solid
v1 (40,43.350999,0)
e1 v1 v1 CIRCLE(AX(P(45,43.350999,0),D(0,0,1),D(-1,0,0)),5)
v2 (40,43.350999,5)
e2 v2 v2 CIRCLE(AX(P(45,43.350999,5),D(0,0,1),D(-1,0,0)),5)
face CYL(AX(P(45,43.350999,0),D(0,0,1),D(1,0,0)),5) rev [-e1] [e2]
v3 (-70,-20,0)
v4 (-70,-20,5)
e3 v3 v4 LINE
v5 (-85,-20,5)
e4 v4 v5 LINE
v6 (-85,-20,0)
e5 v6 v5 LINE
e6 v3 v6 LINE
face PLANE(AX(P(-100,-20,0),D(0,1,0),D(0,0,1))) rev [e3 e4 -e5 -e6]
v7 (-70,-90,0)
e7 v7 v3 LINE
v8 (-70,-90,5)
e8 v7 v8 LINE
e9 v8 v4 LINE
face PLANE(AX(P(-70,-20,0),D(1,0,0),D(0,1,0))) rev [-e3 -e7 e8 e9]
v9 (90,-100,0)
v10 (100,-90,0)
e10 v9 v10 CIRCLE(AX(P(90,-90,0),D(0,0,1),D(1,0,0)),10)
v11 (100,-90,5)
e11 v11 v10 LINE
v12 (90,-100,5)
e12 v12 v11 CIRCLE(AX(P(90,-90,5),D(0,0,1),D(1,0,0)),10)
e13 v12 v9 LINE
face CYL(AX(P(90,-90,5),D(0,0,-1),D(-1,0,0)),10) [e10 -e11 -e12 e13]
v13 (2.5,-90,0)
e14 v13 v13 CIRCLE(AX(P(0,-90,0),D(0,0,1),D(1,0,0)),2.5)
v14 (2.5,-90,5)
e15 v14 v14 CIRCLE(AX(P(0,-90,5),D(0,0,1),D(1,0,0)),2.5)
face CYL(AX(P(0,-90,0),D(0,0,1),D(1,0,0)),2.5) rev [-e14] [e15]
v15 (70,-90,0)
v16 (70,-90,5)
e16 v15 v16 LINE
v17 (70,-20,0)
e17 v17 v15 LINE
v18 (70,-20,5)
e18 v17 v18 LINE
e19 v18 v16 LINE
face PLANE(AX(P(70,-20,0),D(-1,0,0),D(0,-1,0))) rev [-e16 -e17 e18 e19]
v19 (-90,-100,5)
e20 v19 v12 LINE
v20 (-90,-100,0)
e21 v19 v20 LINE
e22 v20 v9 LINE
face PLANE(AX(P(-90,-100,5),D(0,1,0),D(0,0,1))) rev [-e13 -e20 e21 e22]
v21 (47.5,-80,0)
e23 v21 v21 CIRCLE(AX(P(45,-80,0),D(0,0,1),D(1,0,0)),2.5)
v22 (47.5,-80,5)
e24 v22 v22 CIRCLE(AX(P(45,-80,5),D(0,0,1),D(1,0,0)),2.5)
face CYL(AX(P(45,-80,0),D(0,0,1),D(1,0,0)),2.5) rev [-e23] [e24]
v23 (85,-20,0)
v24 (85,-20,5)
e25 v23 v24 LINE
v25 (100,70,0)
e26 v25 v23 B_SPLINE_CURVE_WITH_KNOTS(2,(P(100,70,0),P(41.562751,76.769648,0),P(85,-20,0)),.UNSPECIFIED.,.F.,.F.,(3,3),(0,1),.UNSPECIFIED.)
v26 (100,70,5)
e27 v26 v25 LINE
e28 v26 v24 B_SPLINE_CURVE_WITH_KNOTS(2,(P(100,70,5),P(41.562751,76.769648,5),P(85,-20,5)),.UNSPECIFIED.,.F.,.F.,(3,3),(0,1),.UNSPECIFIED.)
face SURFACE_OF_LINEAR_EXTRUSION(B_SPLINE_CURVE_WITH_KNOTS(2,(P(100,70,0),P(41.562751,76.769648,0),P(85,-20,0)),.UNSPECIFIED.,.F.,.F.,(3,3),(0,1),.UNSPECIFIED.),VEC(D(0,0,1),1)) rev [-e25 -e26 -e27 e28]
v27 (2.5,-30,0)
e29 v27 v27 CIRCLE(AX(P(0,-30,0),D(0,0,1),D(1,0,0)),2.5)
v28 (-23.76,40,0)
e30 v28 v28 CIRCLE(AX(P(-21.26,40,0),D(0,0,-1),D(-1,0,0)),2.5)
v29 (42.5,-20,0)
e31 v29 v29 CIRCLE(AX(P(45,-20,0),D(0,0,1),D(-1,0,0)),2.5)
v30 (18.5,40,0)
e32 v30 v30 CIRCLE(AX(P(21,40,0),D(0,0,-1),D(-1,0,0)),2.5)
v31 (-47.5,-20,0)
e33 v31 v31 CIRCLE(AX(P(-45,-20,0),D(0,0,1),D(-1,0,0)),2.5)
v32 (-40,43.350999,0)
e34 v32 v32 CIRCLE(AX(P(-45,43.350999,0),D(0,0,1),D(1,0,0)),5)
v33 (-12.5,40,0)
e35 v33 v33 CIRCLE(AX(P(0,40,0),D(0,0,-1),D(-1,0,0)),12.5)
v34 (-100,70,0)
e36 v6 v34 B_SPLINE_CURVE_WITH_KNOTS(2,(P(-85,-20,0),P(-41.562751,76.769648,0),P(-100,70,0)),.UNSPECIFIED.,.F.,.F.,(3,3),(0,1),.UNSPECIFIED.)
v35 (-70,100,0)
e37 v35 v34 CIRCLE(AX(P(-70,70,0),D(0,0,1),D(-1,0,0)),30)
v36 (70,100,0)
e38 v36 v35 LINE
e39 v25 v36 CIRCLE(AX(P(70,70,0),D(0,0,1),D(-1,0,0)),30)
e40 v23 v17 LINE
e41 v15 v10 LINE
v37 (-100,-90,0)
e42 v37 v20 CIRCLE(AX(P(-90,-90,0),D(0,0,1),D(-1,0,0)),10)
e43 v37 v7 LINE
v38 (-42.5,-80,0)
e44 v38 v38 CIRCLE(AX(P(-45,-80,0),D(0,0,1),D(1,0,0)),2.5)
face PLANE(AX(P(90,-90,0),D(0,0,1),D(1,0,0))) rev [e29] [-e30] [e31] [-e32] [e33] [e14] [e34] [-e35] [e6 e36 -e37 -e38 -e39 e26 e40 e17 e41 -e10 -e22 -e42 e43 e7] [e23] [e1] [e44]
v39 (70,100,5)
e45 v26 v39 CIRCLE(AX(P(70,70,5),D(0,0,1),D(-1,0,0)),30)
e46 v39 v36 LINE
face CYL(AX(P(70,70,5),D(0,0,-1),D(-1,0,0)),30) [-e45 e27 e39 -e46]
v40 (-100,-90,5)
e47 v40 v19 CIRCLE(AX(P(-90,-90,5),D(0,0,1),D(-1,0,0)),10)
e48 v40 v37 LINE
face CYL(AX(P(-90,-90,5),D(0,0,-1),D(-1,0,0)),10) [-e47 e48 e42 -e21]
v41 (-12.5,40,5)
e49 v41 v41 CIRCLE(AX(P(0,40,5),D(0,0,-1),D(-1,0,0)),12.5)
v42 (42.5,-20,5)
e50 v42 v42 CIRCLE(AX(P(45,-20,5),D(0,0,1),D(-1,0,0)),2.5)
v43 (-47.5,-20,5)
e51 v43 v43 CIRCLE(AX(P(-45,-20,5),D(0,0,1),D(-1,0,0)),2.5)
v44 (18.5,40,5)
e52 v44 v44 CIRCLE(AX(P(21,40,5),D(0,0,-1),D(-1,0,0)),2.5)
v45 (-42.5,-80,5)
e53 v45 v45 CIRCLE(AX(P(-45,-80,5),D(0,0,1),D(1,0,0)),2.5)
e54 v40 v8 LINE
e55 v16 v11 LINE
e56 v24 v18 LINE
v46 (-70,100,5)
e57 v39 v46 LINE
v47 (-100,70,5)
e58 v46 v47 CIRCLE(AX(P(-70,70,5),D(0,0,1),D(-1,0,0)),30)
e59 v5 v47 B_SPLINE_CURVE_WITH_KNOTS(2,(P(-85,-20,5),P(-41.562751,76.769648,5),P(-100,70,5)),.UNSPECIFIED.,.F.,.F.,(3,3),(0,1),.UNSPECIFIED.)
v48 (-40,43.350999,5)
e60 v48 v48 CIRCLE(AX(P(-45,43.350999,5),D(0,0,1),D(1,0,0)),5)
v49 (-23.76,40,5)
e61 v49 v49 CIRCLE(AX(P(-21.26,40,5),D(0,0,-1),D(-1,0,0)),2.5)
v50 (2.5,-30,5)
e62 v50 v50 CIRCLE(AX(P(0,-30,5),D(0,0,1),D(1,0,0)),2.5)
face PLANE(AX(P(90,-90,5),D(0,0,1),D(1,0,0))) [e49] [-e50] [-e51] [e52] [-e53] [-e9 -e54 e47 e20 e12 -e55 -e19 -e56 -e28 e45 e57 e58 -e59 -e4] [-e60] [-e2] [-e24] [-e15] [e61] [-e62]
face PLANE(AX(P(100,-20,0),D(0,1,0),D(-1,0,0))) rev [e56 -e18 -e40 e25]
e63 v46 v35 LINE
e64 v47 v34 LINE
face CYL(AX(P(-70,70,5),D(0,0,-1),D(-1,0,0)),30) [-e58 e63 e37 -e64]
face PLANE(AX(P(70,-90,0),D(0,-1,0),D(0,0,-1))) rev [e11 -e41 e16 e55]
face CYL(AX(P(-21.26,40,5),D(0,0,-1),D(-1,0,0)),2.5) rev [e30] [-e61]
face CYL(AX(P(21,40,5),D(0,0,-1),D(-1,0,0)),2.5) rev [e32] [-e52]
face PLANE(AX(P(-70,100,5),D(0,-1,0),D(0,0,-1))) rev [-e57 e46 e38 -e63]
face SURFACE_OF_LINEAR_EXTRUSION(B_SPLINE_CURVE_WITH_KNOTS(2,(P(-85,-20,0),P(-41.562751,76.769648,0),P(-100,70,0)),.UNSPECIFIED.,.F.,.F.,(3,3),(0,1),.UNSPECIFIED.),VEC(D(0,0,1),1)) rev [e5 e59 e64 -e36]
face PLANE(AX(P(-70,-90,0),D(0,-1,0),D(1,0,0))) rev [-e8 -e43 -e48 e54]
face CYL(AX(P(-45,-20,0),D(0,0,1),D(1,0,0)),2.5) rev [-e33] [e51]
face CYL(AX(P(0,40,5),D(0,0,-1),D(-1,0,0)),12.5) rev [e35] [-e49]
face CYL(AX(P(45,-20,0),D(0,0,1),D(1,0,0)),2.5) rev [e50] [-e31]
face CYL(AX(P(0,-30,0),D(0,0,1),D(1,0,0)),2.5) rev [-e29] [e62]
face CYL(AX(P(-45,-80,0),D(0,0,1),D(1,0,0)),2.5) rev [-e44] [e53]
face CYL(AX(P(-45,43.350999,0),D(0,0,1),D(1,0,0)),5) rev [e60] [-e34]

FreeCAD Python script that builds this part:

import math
import FreeCAD as App
import Part
import Sketcher
Q = App.Units.Quantity

doc = App.newDocument("Part")
params = doc.addObject("Spreadsheet::Sheet", "Params")
for row, (alias, value) in enumerate([
    ("sketch1_radius", "10 mm"),
    ("sketch1_radius2", "30 mm"),
    ("sketch1_width", "180 mm"),
    ("sketch1_height", "160 mm"),
    ("pad1_length", "5 mm"),
    ("sketch2_width", "30 mm"),
    ("sketch2_height", "70 mm"),
    ("pocket1_length", "5 mm"),
    ("pocket2_length", "5 mm"),
    ("sketch4_diameter", "5 mm"),
    ("sketch4_diameter2", "10 mm"),
    ("pocket3_length", "5 mm"),
    ("sketch5_diameter", "5 mm"),
    ("pocket4_length", "5 mm"),
    ("sketch6_diameter", "25 mm"),
    ("sketch6_diameter2", "5 mm"),
    ("pocket5_length", "5 mm"),
], start=1):
    params.set(f"A{row}", alias)
    params.set(f"B{row}", "=" + value)
    params.setAlias(f"B{row}", alias)

body = doc.addObject("PartDesign::Body", "Body")

# Sketch on XY plane
sketch1 = doc.addObject("Sketcher::SketchObject", "Sketch")
body.addObject(sketch1)
sketch1.AttachmentSupport = (doc.XY_Plane, [""])
sketch1.MapMode = "FlatFace"
sketch1.addGeometry([
    Part.LineSegment(App.Vector(-90, -100, 0), App.Vector(90, -100, 0)),  # 0
    Part.ArcOfCircle(Part.Circle(App.Vector(90, -90, 0), App.Vector(0, 0, 1), 10), math.radians(-90), math.radians(0)),  # 1
    Part.LineSegment(App.Vector(100, -90, 0), App.Vector(100, 70, 0)),  # 2
    Part.ArcOfCircle(Part.Circle(App.Vector(70, 70, 0), App.Vector(0, 0, 1), 30), math.radians(0), math.radians(90)),  # 3
    Part.LineSegment(App.Vector(70, 100, 0), App.Vector(-70, 100, 0)),  # 4
    Part.ArcOfCircle(Part.Circle(App.Vector(-70, 70, 0), App.Vector(0, 0, 1), 30), math.radians(90), math.radians(180)),  # 5
    Part.LineSegment(App.Vector(-100, 70, 0), App.Vector(-100, -90, 0)),  # 6
    Part.ArcOfCircle(Part.Circle(App.Vector(-90, -90, 0), App.Vector(0, 0, 1), 10), math.radians(180), math.radians(270)),  # 7
], False)
sketch1.addConstraint([
    Sketcher.Constraint("Tangent", 0, 2, 1, 1),
    Sketcher.Constraint("Tangent", 1, 2, 2, 1),
    Sketcher.Constraint("Tangent", 2, 2, 3, 1),
    Sketcher.Constraint("Tangent", 3, 2, 4, 1),
    Sketcher.Constraint("Tangent", 4, 2, 5, 1),
    Sketcher.Constraint("Tangent", 5, 2, 6, 1),
    Sketcher.Constraint("Tangent", 6, 2, 7, 1),
    Sketcher.Constraint("Tangent", 7, 2, 0, 1),
    Sketcher.Constraint("Horizontal", 0),
    Sketcher.Constraint("Vertical", 2),
    Sketcher.Constraint("Horizontal", 4),
    Sketcher.Constraint("Vertical", 6),
    Sketcher.Constraint("Equal", 3, 5),
    Sketcher.Constraint("Equal", 1, 7),
    Sketcher.Constraint("Radius", 1, Q("10 mm")),
    Sketcher.Constraint("Radius", 3, Q("30 mm")),
    Sketcher.Constraint("DistanceX", 0, 1, 0, 2, Q("180 mm")),
    Sketcher.Constraint("DistanceY", 2, 1, 2, 2, Q("160 mm")),
    Sketcher.Constraint("DistanceX", -1, 1, 1, 3, Q("90 mm")),
    Sketcher.Constraint("DistanceY", 1, 3, -1, 1, Q("90 mm")),
])
sketch1.setExpression("Constraints[14]", "Params.sketch1_radius")
sketch1.setExpression("Constraints[15]", "Params.sketch1_radius2")
sketch1.setExpression("Constraints[16]", "Params.sketch1_width")
sketch1.setExpression("Constraints[17]", "Params.sketch1_height")
pad1 = doc.addObject("PartDesign::Pad", "Pad")
body.addObject(pad1)
pad1.Profile = sketch1
pad1.setExpression("Length", "Params.pad1_length")

# Sketch on XY plane
sketch2 = doc.addObject("Sketcher::SketchObject", "Sketch001")
body.addObject(sketch2)
sketch2.AttachmentSupport = (doc.XY_Plane, [""])
sketch2.MapMode = "FlatFace"
sketch2.AttachmentOffset = App.Placement(App.Vector(0, 0, 5), App.Rotation())
sketch2.addGeometry([
    Part.LineSegment(App.Vector(70, -20, 0), App.Vector(70, -90, 0)),  # 0
    Part.LineSegment(App.Vector(70, -90, 0), App.Vector(100, -90, 0)),  # 1
    Part.LineSegment(App.Vector(100, -90, 0), App.Vector(100, -20, 0)),  # 2
    Part.LineSegment(App.Vector(100, -20, 0), App.Vector(70, -20, 0)),  # 3
    Part.LineSegment(App.Vector(-100, -20, 0), App.Vector(-100, -90, 0)),  # 4
    Part.LineSegment(App.Vector(-100, -90, 0), App.Vector(-70, -90, 0)),  # 5
    Part.LineSegment(App.Vector(-70, -90, 0), App.Vector(-70, -20, 0)),  # 6
    Part.LineSegment(App.Vector(-70, -20, 0), App.Vector(-100, -20, 0)),  # 7
], False)
sketch2.addConstraint([
    Sketcher.Constraint("Coincident", 0, 2, 1, 1),
    Sketcher.Constraint("Coincident", 1, 2, 2, 1),
    Sketcher.Constraint("Coincident", 2, 2, 3, 1),
    Sketcher.Constraint("Coincident", 3, 2, 0, 1),
    Sketcher.Constraint("Coincident", 4, 2, 5, 1),
    Sketcher.Constraint("Coincident", 5, 2, 6, 1),
    Sketcher.Constraint("Coincident", 6, 2, 7, 1),
    Sketcher.Constraint("Coincident", 7, 2, 4, 1),
    Sketcher.Constraint("Vertical", 0),
    Sketcher.Constraint("Horizontal", 1),
    Sketcher.Constraint("Vertical", 2),
    Sketcher.Constraint("Horizontal", 3),
    Sketcher.Constraint("Vertical", 4),
    Sketcher.Constraint("Horizontal", 5),
    Sketcher.Constraint("Vertical", 6),
    Sketcher.Constraint("Horizontal", 7),
    Sketcher.Constraint("Symmetric", 1, 2, 4, 2, -2),
    Sketcher.Constraint("Symmetric", 3, 2, 6, 2, -2),
    Sketcher.Constraint("DistanceX", 1, 1, 1, 2, Q("30 mm")),
    Sketcher.Constraint("DistanceY", 0, 2, 0, 1, Q("70 mm")),
    Sketcher.Constraint("DistanceX", -1, 1, 0, 2, Q("70 mm")),
    Sketcher.Constraint("DistanceY", 0, 2, -1, 1, Q("90 mm")),
])
sketch2.setExpression("Constraints[18]", "Params.sketch2_width")
sketch2.setExpression("Constraints[19]", "Params.sketch2_height")
pocket1 = doc.addObject("PartDesign::Pocket", "Pocket")
body.addObject(pocket1)
pocket1.Profile = sketch2
pocket1.setExpression("Length", "Params.pocket1_length")

# Sketch on XY plane
sketch3 = doc.addObject("Sketcher::SketchObject", "Sketch002")
body.addObject(sketch3)
sketch3.AttachmentSupport = (doc.XY_Plane, [""])
sketch3.MapMode = "FlatFace"
sketch3.AttachmentOffset = App.Placement(App.Vector(0, 0, 5), App.Rotation())
sketch3.addGeometry([
    Part.LineSegment(App.Vector(85, -20, 0), App.Vector(100, -20, 0)),  # 0
    Part.LineSegment(App.Vector(100, -20, 0), App.Vector(100, 70, 0)),  # 1
    Part.BSplineCurve([App.Vector(100, 70, 0), App.Vector(41.562751, 76.769648, 0), App.Vector(85, -20, 0)], [3, 3], [0, 1], False, 2, [1, 1, 1], False),  # 2
    Part.LineSegment(App.Vector(-100, -20, 0), App.Vector(-85, -20, 0)),  # 3
    Part.BSplineCurve([App.Vector(-100, 70, 0), App.Vector(-41.562751, 76.769648, 0), App.Vector(-85, -20, 0)], [3, 3], [0, 1], False, 2, [1, 1, 1], False),  # 4
    Part.LineSegment(App.Vector(-100, 70, 0), App.Vector(-100, -20, 0)),  # 5
], False)
sketch3.addConstraint([
    Sketcher.Constraint("Block", 2),
    Sketcher.Constraint("Block", 4),
    Sketcher.Constraint("Coincident", 0, 2, 1, 1),
    Sketcher.Constraint("Coincident", 1, 2, 2, 1),
    Sketcher.Constraint("Coincident", 2, 2, 0, 1),
    Sketcher.Constraint("Coincident", 3, 2, 4, 2),
    Sketcher.Constraint("Coincident", 4, 1, 5, 1),
    Sketcher.Constraint("Coincident", 5, 2, 3, 1),
    Sketcher.Constraint("Horizontal", 0),
    Sketcher.Constraint("Vertical", 1),
    Sketcher.Constraint("Horizontal", 3),
    Sketcher.Constraint("Vertical", 5),
])
pocket2 = doc.addObject("PartDesign::Pocket", "Pocket001")
body.addObject(pocket2)
pocket2.Profile = sketch3
pocket2.setExpression("Length", "Params.pocket2_length")

# Sketch on XY plane
sketch4 = doc.addObject("Sketcher::SketchObject", "Sketch003")
body.addObject(sketch4)
sketch4.AttachmentSupport = (doc.XY_Plane, [""])
sketch4.MapMode = "FlatFace"
sketch4.AttachmentOffset = App.Placement(App.Vector(0, 0, 5), App.Rotation())
sketch4.addGeometry([
    Part.Circle(App.Vector(45, -80, 0), App.Vector(0, 0, 1), 2.5),  # 0
    Part.Circle(App.Vector(-45, -80, 0), App.Vector(0, 0, 1), 2.5),  # 1
    Part.Circle(App.Vector(45, -20, 0), App.Vector(0, 0, 1), 2.5),  # 2
    Part.Circle(App.Vector(-45, -20, 0), App.Vector(0, 0, 1), 2.5),  # 3
    Part.Circle(App.Vector(-45, 43.4, 0), App.Vector(0, 0, 1), 5),  # 4
    Part.Circle(App.Vector(45, 43.4, 0), App.Vector(0, 0, 1), 5),  # 5
    Part.Circle(App.Vector(0, -30, 0), App.Vector(0, 0, 1), 2.5),  # 6
], False)
sketch4.addConstraint([
    Sketcher.Constraint("Equal", 0, 1),
    Sketcher.Constraint("Equal", 1, 2),
    Sketcher.Constraint("Equal", 2, 3),
    Sketcher.Constraint("Equal", 4, 5),
    Sketcher.Constraint("Equal", 3, 6),
    Sketcher.Constraint("Symmetric", 0, 3, 1, 3, -2),
    Sketcher.Constraint("Symmetric", 2, 3, 3, 3, -2),
    Sketcher.Constraint("Symmetric", 4, 3, 5, 3, -2),
    Sketcher.Constraint("PointOnObject", 6, 3, -2),
    Sketcher.Constraint("Vertical", 0, 3, 2, 3),
    Sketcher.Constraint("Vertical", 3, 3, 4, 3),
    Sketcher.Constraint("Diameter", 0, Q("5 mm")),
    Sketcher.Constraint("Diameter", 4, Q("10 mm")),
    Sketcher.Constraint("DistanceX", -1, 1, 0, 3, Q("45 mm")),
    Sketcher.Constraint("DistanceY", 0, 3, -1, 1, Q("80 mm")),
    Sketcher.Constraint("DistanceY", 2, 3, -1, 1, Q("20 mm")),
    Sketcher.Constraint("DistanceY", 6, 3, -1, 1, Q("30 mm")),
    Sketcher.Constraint("DistanceY", -1, 1, 4, 3, Q("43.350999 mm")),
])
sketch4.setExpression("Constraints[11]", "Params.sketch4_diameter")
sketch4.setExpression("Constraints[12]", "Params.sketch4_diameter2")
pocket3 = doc.addObject("PartDesign::Pocket", "Pocket002")
body.addObject(pocket3)
pocket3.Profile = sketch4
pocket3.setExpression("Length", "Params.pocket3_length")

# Sketch on XY plane
sketch5 = doc.addObject("Sketcher::SketchObject", "Sketch004")
body.addObject(sketch5)
sketch5.AttachmentSupport = (doc.XY_Plane, [""])
sketch5.MapMode = "FlatFace"
sketch5.AttachmentOffset = App.Placement(App.Vector(0, 0, 5), App.Rotation())
sketch5.addGeometry(Part.Circle(App.Vector(0, -90, 0), App.Vector(0, 0, 1), 2.5), False)
sketch5.addConstraint([
    Sketcher.Constraint("PointOnObject", 0, 3, -2),
    Sketcher.Constraint("Diameter", 0, Q("5 mm")),
    Sketcher.Constraint("DistanceY", 0, 3, -1, 1, Q("90 mm")),
])
sketch5.setExpression("Constraints[1]", "Params.sketch5_diameter")
pocket4 = doc.addObject("PartDesign::Pocket", "Pocket003")
body.addObject(pocket4)
pocket4.Profile = sketch5
pocket4.setExpression("Length", "Params.pocket4_length")

# Sketch on XY plane
sketch6 = doc.addObject("Sketcher::SketchObject", "Sketch005")
body.addObject(sketch6)
sketch6.AttachmentSupport = (doc.XY_Plane, [""])
sketch6.MapMode = "FlatFace"
sketch6.addGeometry([
    Part.Circle(App.Vector(0, 40, 0), App.Vector(0, 0, 1), 12.5),
    Part.Circle(App.Vector(21, 40, 0), App.Vector(0, 0, 1), 2.5),
    Part.Circle(App.Vector(-21.3, 40, 0), App.Vector(0, 0, 1), 2.5),
], False)
sketch6.addConstraint([
    Sketcher.Constraint("Equal", 1, 2),
    Sketcher.Constraint("PointOnObject", 0, 3, -2),
    Sketcher.Constraint("Horizontal", 0, 3, 1, 3),
    Sketcher.Constraint("Horizontal", 1, 3, 2, 3),
    Sketcher.Constraint("Diameter", 0, Q("25 mm")),
    Sketcher.Constraint("Diameter", 1, Q("5 mm")),
    Sketcher.Constraint("DistanceY", -1, 1, 0, 3, Q("40 mm")),
    Sketcher.Constraint("DistanceX", -1, 1, 1, 3, Q("21 mm")),
    Sketcher.Constraint("DistanceX", 2, 3, -1, 1, Q("21.26 mm")),
])
sketch6.setExpression("Constraints[4]", "Params.sketch6_diameter")
sketch6.setExpression("Constraints[5]", "Params.sketch6_diameter2")
pocket5 = doc.addObject("PartDesign::Pocket", "Pocket004")
body.addObject(pocket5)
pocket5.Profile = sketch6
pocket5.setExpression("Length", "Params.pocket5_length")
pocket5.Reversed = True

doc.recompute()
